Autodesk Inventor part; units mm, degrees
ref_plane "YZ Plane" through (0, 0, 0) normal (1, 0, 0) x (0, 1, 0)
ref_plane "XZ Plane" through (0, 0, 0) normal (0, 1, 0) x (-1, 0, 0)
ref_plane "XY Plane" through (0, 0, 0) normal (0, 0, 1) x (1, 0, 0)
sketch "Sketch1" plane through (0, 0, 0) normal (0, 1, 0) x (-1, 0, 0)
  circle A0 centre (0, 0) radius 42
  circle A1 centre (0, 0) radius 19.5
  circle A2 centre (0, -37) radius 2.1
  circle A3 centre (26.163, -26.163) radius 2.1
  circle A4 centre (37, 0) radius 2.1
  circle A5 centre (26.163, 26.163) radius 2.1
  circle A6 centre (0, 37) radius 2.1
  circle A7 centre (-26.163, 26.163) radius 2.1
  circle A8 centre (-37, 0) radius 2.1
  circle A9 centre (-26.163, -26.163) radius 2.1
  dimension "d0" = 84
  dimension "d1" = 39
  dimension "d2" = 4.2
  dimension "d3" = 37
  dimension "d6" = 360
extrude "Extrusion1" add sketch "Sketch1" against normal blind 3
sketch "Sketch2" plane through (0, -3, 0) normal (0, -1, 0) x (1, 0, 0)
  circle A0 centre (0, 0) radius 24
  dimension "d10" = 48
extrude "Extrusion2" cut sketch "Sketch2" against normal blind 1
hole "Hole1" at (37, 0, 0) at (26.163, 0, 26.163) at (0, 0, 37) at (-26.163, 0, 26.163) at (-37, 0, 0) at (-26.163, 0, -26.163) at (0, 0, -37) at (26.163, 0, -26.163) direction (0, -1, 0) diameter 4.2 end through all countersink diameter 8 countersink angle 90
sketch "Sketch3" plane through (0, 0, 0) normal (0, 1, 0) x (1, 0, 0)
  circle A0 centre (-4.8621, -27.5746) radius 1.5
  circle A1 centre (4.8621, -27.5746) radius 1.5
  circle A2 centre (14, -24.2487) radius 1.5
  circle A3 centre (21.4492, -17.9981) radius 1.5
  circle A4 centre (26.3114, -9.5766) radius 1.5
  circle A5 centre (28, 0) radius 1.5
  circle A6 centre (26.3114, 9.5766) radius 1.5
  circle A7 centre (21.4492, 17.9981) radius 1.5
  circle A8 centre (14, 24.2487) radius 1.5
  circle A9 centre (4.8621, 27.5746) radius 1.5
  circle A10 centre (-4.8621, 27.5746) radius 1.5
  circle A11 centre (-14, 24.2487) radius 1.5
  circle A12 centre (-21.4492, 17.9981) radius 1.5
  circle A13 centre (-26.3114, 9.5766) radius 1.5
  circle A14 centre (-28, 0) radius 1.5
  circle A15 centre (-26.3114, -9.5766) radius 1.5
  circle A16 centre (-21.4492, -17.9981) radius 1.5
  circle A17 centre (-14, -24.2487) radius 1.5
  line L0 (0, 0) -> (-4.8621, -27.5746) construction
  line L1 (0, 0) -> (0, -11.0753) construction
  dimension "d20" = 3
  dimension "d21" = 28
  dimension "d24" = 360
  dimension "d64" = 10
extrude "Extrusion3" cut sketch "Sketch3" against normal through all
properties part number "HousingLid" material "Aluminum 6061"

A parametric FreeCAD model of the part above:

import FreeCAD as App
import Part
import Sketcher
from FreeCAD import Vector

doc = App.newDocument("Part")
body = doc.addObject("PartDesign::Body", "Body")

# Sketch on XZ plane
sketch1 = body.newObject("Sketcher::SketchObject", "Sketch")
sketch1.AttachmentSupport = (doc.getObject("XZ_Plane"), [""])
sketch1.MapMode = "FlatFace"
sketch1.addGeometry([
    Part.Circle(Vector(0, 0, 0), Vector(0, 0, 1), 42),  # 0
    Part.Circle(Vector(26.2, -26.2, 0), Vector(0, 0, 1), 2.1),  # 1
    Part.Circle(Vector(0, -37, 0), Vector(0, 0, 1), 2.1),  # 2
    Part.Circle(Vector(-26.2, -26.2, 0), Vector(0, 0, 1), 2.1),  # 3
    Part.Circle(Vector(37, 0, 0), Vector(0, 0, 1), 2.1),  # 4
    Part.Circle(Vector(26.2, 26.2, 0), Vector(0, 0, 1), 2.1),  # 5
    Part.Circle(Vector(0, 0, 0), Vector(0, 0, 1), 19.5),  # 6
    Part.Circle(Vector(-37, 0, 0), Vector(0, 0, 1), 2.1),  # 7
    Part.Circle(Vector(0, 37, 0), Vector(0, 0, 1), 2.1),  # 8
    Part.Circle(Vector(-26.2, 26.2, 0), Vector(0, 0, 1), 2.1),  # 9
], False)
sketch1.addConstraint([
    Sketcher.Constraint("Coincident", 0, 3, -1, 1),
    Sketcher.Constraint("Coincident", 6, 3, -1, 1),
    Sketcher.Constraint("Equal", 1, 2),
    Sketcher.Constraint("Equal", 2, 3),
    Sketcher.Constraint("Equal", 3, 4),
    Sketcher.Constraint("Equal", 4, 5),
    Sketcher.Constraint("Equal", 5, 7),
    Sketcher.Constraint("Equal", 7, 8),
    Sketcher.Constraint("Equal", 8, 9),
    Sketcher.Constraint("Symmetric", 3, 3, 5, 3, -1, 1),
    Sketcher.Constraint("Symmetric", 4, 3, 7, 3, -1, 1),
    Sketcher.Constraint("Symmetric", 2, 3, 8, 3, -1, 1),
    Sketcher.Constraint("Symmetric", 1, 3, 9, 3, -1, 1),
    Sketcher.Constraint("Symmetric", 1, 3, 3, 3, -2),
    Sketcher.Constraint("PointOnObject", 2, 3, -2),
    Sketcher.Constraint("PointOnObject", 4, 3, -1),
    Sketcher.Constraint("Diameter", 0, 84.0),
    Sketcher.Constraint("Diameter", 6, 39.0),
    Sketcher.Constraint("Diameter", 1, 4.2),
    Sketcher.Constraint("DistanceY", 2, 3, -1, 1, 37.0),
    Sketcher.Constraint("DistanceX", -1, 1, 4, 3, 37.0),
    Sketcher.Constraint("DistanceX", -1, 1, 1, 3, 26.163),
    Sketcher.Constraint("DistanceY", 1, 3, -1, 1, 26.163),
])
pad1 = body.newObject("PartDesign::Pad", "Pad")
pad1.Profile = sketch1
pad1.Length = 3

# Sketch on XZ plane
sketch2 = body.newObject("Sketcher::SketchObject", "Sketch001")
sketch2.AttachmentSupport = (doc.getObject("XZ_Plane"), [""])
sketch2.MapMode = "FlatFace"
sketch2.AttachmentOffset = App.Placement(Vector(0, 0, 3), App.Rotation())
sketch2.addGeometry(Part.Circle(Vector(0, 0, 0), Vector(0, 0, 1), 24), False)
sketch2.addConstraint([
    Sketcher.Constraint("Coincident", 0, 3, -1, 1),
    Sketcher.Constraint("Diameter", 0, 48.0),
])
pocket1 = body.newObject("PartDesign::Pocket", "Pocket")
pocket1.Profile = sketch2
pocket1.Length = 1

# Sketch on XZ plane
sketch3 = body.newObject("Sketcher::SketchObject", "Sketch002")
sketch3.AttachmentSupport = (doc.getObject("XZ_Plane"), [""])
sketch3.MapMode = "FlatFace"
sketch3.addGeometry([
    Part.Circle(Vector(37, 0, 0), Vector(0, 0, 1), 2.1),  # 0
    Part.Circle(Vector(26.2, 26.2, 0), Vector(0, 0, 1), 2.1),  # 1
    Part.Circle(Vector(0, 37, 0), Vector(0, 0, 1), 2.1),  # 2
    Part.Circle(Vector(-26.2, 26.2, 0), Vector(0, 0, 1), 2.1),  # 3
    Part.Circle(Vector(-37, 0, 0), Vector(0, 0, 1), 2.1),  # 4
    Part.Circle(Vector(-26.2, -26.2, 0), Vector(0, 0, 1), 2.1),  # 5
    Part.Circle(Vector(0, -37, 0), Vector(0, 0, 1), 2.1),  # 6
    Part.Circle(Vector(26.2, -26.2, 0), Vector(0, 0, 1), 2.1),  # 7
], False)
sketch3.addConstraint([
    Sketcher.Constraint("Equal", 0, 1),
    Sketcher.Constraint("Equal", 1, 2),
    Sketcher.Constraint("Equal", 2, 3),
    Sketcher.Constraint("Equal", 3, 4),
    Sketcher.Constraint("Equal", 4, 5),
    Sketcher.Constraint("Equal", 5, 6),
    Sketcher.Constraint("Equal", 6, 7),
    Sketcher.Constraint("Symmetric", 0, 3, 4, 3, -1, 1),
    Sketcher.Constraint("Symmetric", 1, 3, 5, 3, -1, 1),
    Sketcher.Constraint("Symmetric", 2, 3, 6, 3, -1, 1),
    Sketcher.Constraint("Symmetric", 3, 3, 7, 3, -1, 1),
    Sketcher.Constraint("Symmetric", 1, 3, 3, 3, -2),
    Sketcher.Constraint("PointOnObject", 0, 3, -1),
    Sketcher.Constraint("PointOnObject", 2, 3, -2),
    Sketcher.Constraint("Diameter", 0, 4.2),
    Sketcher.Constraint("DistanceX", -1, 1, 0, 3, 37.0),
    Sketcher.Constraint("DistanceY", -1, 1, 2, 3, 37.0),
    Sketcher.Constraint("DistanceX", -1, 1, 1, 3, 26.163),
    Sketcher.Constraint("DistanceY", -1, 1, 1, 3, 26.163),
])
doc.recompute()
hole = body.newObject("PartDesign::Hole", "Hole")
hole.Profile = sketch3
hole.ThreadType = "None"
hole.Diameter = 4.2
hole.DepthType = "ThroughAll"
hole.HoleCutType = "Countersink"
hole.HoleCutDiameter = 8
hole.HoleCutCountersinkAngle = 90
hole.Reversed = True

# Sketch on XZ plane
sketch4 = body.newObject("Sketcher::SketchObject", "Sketch003")
sketch4.AttachmentSupport = (doc.getObject("XZ_Plane"), [""])
sketch4.MapMode = "FlatFace"
sketch4.addGeometry([
    Part.Circle(Vector(-4.9, 27.6, 0), Vector(0, 0, 1), 1.5),  # 0
    Part.Circle(Vector(4.9, 27.6, 0), Vector(0, 0, 1), 1.5),  # 1
    Part.Circle(Vector(14, 24.2, 0), Vector(0, 0, 1), 1.5),  # 2
    Part.Circle(Vector(21.4, 18, 0), Vector(0, 0, 1), 1.5),  # 3
    Part.Circle(Vector(26.3, 9.6, 0), Vector(0, 0, 1), 1.5),  # 4
    Part.Circle(Vector(28, 0, 0), Vector(0, 0, 1), 1.5),  # 5
    Part.Circle(Vector(26.3, -9.6, 0), Vector(0, 0, 1), 1.5),  # 6
    Part.Circle(Vector(21.4, -18, 0), Vector(0, 0, 1), 1.5),  # 7
    Part.Circle(Vector(14, -24.2, 0), Vector(0, 0, 1), 1.5),  # 8
    Part.Circle(Vector(4.9, -27.6, 0), Vector(0, 0, 1), 1.5),  # 9
    Part.Circle(Vector(-4.9, -27.6, 0), Vector(0, 0, 1), 1.5),  # 10
    Part.Circle(Vector(-14, -24.2, 0), Vector(0, 0, 1), 1.5),  # 11
    Part.Circle(Vector(-21.4, -18, 0), Vector(0, 0, 1), 1.5),  # 12
    Part.Circle(Vector(-26.3, -9.6, 0), Vector(0, 0, 1), 1.5),  # 13
    Part.Circle(Vector(-28, 0, 0), Vector(0, 0, 1), 1.5),  # 14
    Part.Circle(Vector(-26.3, 9.6, 0), Vector(0, 0, 1), 1.5),  # 15
    Part.Circle(Vector(-21.4, 18, 0), Vector(0, 0, 1), 1.5),  # 16
    Part.Circle(Vector(-14, 24.2, 0), Vector(0, 0, 1), 1.5),  # 17
], False)
sketch4.addConstraint([
    Sketcher.Constraint("Equal", 0, 1),
    Sketcher.Constraint("Equal", 1, 2),
    Sketcher.Constraint("Equal", 2, 3),
    Sketcher.Constraint("Equal", 3, 4),
    Sketcher.Constraint("Equal", 4, 5),
    Sketcher.Constraint("Equal", 5, 6),
    Sketcher.Constraint("Equal", 6, 7),
    Sketcher.Constraint("Equal", 7, 8),
    Sketcher.Constraint("Equal", 8, 9),
    Sketcher.Constraint("Equal", 9, 10),
    Sketcher.Constraint("Equal", 10, 11),
    Sketcher.Constraint("Equal", 11, 12),
    Sketcher.Constraint("Equal", 12, 13),
    Sketcher.Constraint("Equal", 13, 14),
    Sketcher.Constraint("Equal", 14, 15),
    Sketcher.Constraint("Equal", 15, 16),
    Sketcher.Constraint("Equal", 16, 17),
    Sketcher.Constraint("Symmetric", 0, 3, 9, 3, -1, 1),
    Sketcher.Constraint("Symmetric", 1, 3, 10, 3, -1, 1),
    Sketcher.Constraint("Symmetric", 2, 3, 11, 3, -1, 1),
    Sketcher.Constraint("Symmetric", 3, 3, 12, 3, -1, 1),
    Sketcher.Constraint("Symmetric", 4, 3, 13, 3, -1, 1),
    Sketcher.Constraint("Symmetric", 5, 3, 14, 3, -1, 1),
    Sketcher.Constraint("Symmetric", 6, 3, 15, 3, -1, 1),
    Sketcher.Constraint("Symmetric", 7, 3, 16, 3, -1, 1),
    Sketcher.Constraint("Symmetric", 8, 3, 17, 3, -1, 1),
    Sketcher.Constraint("Symmetric", 0, 3, 1, 3, -2),
    Sketcher.Constraint("Symmetric", 8, 3, 11, 3, -2),
    Sketcher.Constraint("Symmetric", 7, 3, 12, 3, -2),
    Sketcher.Constraint("Symmetric", 6, 3, 13, 3, -2),
    Sketcher.Constraint("PointOnObject", 5, 3, -1),
    Sketcher.Constraint("Diameter", 0, 3.0),
    Sketcher.Constraint("DistanceX", -1, 1, 5, 3, 28.0),
    Sketcher.Constraint("DistanceX", 11, 3, 8, 3, 28.0),
    Sketcher.Constraint("DistanceX", 0, 3, -1, 1, 4.862),
    Sketcher.Constraint("DistanceY", -1, 1, 3, 3, 17.998),
    Sketcher.Constraint("DistanceY", 2, 3, 1, 3, 3.326),
    Sketcher.Constraint("DistanceX", 1, 3, 3, 3, 16.587),
    Sketcher.Constraint("DistanceY", 4, 3, 2, 3, 14.672),
    Sketcher.Constraint("DistanceY", -1, 1, 0, 3, 27.5746),
    Sketcher.Constraint("DistanceX", -1, 1, 4, 3, 26.3114),
])
pocket2 = body.newObject("PartDesign::Pocket", "Pocket001")
pocket2.Profile = sketch4
pocket2.Type = "ThroughAll"
pocket2.Reversed = True

doc.recompute()
